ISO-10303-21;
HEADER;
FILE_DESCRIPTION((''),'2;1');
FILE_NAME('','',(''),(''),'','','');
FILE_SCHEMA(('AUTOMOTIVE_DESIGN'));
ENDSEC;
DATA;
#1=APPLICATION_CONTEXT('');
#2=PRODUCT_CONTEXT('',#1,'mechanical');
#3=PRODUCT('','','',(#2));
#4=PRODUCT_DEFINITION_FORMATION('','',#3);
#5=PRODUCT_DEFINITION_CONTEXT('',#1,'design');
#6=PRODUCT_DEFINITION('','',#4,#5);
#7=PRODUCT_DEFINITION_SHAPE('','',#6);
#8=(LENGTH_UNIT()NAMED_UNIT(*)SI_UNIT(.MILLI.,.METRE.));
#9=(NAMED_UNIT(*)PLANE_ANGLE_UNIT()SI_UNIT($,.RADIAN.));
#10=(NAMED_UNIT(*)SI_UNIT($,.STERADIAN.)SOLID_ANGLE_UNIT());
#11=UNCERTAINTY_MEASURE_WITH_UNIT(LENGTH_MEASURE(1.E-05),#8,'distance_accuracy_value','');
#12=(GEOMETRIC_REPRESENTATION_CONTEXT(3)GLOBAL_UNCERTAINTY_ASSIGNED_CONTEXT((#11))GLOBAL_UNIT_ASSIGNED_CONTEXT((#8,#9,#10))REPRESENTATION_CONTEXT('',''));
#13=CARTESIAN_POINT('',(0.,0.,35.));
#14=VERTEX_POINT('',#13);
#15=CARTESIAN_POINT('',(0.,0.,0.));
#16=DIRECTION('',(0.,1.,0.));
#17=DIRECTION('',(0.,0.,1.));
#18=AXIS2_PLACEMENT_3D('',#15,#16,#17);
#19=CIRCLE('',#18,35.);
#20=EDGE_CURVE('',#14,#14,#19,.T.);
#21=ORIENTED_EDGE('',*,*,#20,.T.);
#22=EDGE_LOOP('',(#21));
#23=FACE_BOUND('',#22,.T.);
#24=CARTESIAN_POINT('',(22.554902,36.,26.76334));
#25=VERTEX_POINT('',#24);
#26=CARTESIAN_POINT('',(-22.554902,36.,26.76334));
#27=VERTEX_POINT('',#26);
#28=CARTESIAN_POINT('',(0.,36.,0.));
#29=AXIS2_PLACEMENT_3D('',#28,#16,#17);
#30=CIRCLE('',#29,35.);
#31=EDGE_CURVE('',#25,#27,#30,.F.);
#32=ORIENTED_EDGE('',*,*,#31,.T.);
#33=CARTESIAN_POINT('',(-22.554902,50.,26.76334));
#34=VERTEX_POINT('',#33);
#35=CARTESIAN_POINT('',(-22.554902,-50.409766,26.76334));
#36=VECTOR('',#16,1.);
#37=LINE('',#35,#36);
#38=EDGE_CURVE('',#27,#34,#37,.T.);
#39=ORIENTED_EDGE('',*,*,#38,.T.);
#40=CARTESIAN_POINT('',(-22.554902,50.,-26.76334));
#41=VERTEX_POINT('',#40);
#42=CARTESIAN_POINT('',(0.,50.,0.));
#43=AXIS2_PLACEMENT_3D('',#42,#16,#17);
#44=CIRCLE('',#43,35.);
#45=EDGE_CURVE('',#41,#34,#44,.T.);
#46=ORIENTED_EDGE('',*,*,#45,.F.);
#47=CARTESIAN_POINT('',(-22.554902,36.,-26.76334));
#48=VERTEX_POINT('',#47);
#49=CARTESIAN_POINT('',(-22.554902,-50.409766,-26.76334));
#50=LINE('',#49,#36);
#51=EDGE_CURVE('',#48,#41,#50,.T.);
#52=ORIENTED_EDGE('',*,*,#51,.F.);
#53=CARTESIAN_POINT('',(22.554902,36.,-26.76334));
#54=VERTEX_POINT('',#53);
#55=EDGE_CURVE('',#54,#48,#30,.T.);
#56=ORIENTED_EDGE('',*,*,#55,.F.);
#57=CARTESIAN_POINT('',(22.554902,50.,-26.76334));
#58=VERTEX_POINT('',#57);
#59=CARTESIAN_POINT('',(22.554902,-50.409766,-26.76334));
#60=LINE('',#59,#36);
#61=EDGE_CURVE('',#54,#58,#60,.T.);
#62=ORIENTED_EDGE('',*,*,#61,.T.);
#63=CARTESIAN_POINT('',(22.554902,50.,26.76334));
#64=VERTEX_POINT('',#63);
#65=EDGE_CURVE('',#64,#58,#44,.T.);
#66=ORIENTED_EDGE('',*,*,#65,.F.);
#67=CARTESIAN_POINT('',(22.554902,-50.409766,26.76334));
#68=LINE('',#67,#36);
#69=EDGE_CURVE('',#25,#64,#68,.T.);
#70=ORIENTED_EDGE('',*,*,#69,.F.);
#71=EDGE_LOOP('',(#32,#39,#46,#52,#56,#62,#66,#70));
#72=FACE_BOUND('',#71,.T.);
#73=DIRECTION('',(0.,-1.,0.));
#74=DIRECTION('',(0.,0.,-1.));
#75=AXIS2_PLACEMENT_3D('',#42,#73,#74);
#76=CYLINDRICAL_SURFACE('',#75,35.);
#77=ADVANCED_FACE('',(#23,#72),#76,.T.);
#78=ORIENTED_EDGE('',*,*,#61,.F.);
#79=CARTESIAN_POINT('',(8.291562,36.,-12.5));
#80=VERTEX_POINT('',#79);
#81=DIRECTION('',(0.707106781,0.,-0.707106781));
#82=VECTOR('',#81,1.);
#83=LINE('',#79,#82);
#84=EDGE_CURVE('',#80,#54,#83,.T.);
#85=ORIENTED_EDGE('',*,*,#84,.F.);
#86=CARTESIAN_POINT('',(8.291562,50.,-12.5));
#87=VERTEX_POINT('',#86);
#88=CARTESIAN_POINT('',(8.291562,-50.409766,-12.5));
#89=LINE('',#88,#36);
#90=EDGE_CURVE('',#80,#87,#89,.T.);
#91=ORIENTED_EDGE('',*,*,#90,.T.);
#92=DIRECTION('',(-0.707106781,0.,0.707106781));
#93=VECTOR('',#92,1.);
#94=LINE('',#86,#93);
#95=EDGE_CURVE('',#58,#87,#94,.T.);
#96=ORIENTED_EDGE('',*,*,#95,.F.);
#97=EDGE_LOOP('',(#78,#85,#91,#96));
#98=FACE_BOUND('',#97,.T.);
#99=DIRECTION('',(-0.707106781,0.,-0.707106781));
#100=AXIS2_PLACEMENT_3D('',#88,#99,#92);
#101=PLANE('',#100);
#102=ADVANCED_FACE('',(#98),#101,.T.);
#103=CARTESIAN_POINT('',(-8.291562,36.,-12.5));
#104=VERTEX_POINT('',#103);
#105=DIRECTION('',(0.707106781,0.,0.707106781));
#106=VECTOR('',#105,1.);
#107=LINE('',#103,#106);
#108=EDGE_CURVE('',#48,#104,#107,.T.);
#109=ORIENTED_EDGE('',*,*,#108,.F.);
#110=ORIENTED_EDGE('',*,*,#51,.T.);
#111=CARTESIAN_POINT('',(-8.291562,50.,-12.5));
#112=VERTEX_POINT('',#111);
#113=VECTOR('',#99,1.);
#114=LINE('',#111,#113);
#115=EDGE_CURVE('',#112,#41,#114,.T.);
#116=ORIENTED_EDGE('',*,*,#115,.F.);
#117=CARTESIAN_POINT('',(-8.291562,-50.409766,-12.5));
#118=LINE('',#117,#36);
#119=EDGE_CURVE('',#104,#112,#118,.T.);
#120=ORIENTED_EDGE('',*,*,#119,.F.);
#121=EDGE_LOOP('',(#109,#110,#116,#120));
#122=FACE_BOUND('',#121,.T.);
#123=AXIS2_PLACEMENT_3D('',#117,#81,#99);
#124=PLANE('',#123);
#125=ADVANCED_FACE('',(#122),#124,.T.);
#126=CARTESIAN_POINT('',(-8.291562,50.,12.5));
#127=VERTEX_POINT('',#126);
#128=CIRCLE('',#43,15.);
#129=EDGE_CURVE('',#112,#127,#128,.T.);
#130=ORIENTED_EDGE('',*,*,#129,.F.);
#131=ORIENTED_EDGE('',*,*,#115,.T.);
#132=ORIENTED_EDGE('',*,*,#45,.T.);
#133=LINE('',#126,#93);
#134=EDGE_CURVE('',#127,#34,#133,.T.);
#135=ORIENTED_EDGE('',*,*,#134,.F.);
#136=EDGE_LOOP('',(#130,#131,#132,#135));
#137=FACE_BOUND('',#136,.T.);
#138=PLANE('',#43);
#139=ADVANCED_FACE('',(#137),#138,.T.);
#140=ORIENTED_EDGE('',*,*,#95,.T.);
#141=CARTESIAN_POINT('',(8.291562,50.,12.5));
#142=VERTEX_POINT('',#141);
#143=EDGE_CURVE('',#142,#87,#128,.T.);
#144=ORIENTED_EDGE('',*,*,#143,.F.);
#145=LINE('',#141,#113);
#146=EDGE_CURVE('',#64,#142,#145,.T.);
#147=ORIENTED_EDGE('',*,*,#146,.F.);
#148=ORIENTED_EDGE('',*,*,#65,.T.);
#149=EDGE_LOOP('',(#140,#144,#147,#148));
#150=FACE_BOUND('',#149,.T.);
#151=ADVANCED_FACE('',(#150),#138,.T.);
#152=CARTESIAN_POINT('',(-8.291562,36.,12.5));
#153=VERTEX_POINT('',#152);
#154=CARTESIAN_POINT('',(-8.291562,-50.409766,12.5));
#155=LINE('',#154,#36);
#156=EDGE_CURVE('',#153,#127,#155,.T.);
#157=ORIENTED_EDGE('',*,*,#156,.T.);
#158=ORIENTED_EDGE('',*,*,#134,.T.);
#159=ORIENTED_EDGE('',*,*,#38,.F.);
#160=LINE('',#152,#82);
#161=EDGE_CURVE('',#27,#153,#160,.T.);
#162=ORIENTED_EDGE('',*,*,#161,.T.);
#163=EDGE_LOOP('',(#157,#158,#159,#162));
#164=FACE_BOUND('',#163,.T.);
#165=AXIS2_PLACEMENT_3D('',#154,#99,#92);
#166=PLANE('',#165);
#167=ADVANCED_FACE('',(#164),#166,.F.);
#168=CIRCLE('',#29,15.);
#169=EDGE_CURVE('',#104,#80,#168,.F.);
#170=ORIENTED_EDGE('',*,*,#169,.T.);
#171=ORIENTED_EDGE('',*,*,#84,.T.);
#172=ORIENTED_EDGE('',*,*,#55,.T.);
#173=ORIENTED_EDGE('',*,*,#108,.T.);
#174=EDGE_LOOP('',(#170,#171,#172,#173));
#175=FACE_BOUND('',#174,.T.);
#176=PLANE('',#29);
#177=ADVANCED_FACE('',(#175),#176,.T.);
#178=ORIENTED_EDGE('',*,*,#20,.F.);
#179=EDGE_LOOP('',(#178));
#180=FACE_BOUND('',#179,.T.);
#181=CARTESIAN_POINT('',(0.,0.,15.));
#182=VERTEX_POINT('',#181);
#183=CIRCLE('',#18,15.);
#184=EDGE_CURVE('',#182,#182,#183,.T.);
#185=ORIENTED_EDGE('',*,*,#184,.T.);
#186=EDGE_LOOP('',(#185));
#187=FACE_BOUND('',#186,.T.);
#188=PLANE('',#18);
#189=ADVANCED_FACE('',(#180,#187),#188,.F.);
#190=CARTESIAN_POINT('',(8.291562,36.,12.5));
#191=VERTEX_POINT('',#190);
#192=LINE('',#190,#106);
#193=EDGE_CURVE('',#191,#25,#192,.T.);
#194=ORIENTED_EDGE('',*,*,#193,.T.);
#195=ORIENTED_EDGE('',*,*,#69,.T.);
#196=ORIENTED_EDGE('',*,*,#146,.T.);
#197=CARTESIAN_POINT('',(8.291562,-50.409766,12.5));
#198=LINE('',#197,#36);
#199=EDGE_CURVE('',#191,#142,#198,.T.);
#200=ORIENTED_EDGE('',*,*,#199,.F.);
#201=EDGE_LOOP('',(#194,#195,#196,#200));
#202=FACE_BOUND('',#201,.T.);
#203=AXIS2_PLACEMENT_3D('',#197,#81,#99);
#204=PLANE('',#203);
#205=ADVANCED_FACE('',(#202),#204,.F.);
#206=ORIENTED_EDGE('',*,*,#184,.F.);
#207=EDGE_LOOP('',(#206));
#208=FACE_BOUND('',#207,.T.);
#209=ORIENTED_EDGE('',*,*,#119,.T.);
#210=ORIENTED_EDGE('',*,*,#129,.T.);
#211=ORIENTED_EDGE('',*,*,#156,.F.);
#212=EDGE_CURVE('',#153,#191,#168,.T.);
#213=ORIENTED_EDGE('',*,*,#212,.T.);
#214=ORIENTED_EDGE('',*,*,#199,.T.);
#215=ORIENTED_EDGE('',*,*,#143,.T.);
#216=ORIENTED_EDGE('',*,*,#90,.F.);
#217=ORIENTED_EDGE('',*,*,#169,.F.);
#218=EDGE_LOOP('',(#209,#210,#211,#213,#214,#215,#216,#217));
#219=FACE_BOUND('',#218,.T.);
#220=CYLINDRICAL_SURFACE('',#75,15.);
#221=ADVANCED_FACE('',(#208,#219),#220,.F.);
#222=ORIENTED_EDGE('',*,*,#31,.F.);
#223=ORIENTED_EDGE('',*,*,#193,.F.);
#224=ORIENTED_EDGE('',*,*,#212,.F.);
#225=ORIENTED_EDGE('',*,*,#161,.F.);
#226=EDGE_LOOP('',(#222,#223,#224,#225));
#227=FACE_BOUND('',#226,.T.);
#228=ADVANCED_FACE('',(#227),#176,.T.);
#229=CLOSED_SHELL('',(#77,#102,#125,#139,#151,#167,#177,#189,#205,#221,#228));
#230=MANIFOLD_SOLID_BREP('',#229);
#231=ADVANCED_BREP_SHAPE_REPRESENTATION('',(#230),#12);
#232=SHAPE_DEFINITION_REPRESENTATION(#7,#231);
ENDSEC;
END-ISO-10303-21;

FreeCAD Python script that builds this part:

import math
import FreeCAD as App
import Part
import Sketcher

doc = App.newDocument("Part")
body = doc.addObject("PartDesign::Body", "Body")

# Sketch on XZ plane
sketch1 = body.newObject("Sketcher::SketchObject", "Sketch")
sketch1.AttachmentSupport = (doc.getObject("XZ_Plane"), [""])
sketch1.MapMode = "FlatFace"
sketch1.addGeometry([
    Part.Circle(App.Vector(0, 0, 0), App.Vector(0, 0, 1), 35),
    Part.Circle(App.Vector(0, 0, 0), App.Vector(0, 0, 1), 15),
], False)
sketch1.addConstraint([
    Sketcher.Constraint("Coincident", 0, 3, -1, 1),
    Sketcher.Constraint("Coincident", 1, 3, -1, 1),
    Sketcher.Constraint("Diameter", 0, 70.0),
    Sketcher.Constraint("Diameter", 1, 30.0),
])
pad1 = body.newObject("PartDesign::Pad", "Pad")
pad1.Profile = sketch1
pad1.Length = 50
pad1.Reversed = True

# Sketch on XZ plane
sketch2 = body.newObject("Sketcher::SketchObject", "Sketch001")
sketch2.AttachmentSupport = (doc.getObject("XZ_Plane"), [""])
sketch2.MapMode = "FlatFace"
sketch2.AttachmentOffset = App.Placement(App.Vector(0, 0, -36), App.Rotation())
sketch2.addGeometry([
    Part.LineSegment(App.Vector(22.554902, 26.76334, 0), App.Vector(8.291562, 12.5, 0)),
    Part.ArcOfCircle(Part.Circle(App.Vector(0, 0, 0), App.Vector(0, 0, 1), 15), math.radians(56.44269), math.radians(123.55731)),
    Part.LineSegment(App.Vector(-8.291562, 12.5, 0), App.Vector(-22.554902, 26.76334, 0)),
    Part.ArcOfCircle(Part.Circle(App.Vector(0, 0, 0), App.Vector(0, 0, 1), 35), math.radians(49.877364), math.radians(130.122636)),
], False)
sketch2.addConstraint([
    Sketcher.Constraint("Coincident", 0, 2, 1, 1),
    Sketcher.Constraint("Coincident", 1, 2, 2, 1),
    Sketcher.Constraint("Coincident", 2, 2, 3, 2),
    Sketcher.Constraint("Coincident", 3, 1, 0, 1),
    Sketcher.Constraint("Coincident", 1, 3, -1, 1),
    Sketcher.Constraint("Coincident", 3, 3, -1, 1),
    Sketcher.Constraint("Perpendicular", 0, 2),
    Sketcher.Constraint("Horizontal", 0, 2, 1, 2),
    Sketcher.Constraint("Horizontal", 2, 2, 3, 1),
    Sketcher.Constraint("Radius", 1, 15.0),
    Sketcher.Constraint("Radius", 3, 35.0),
    Sketcher.Constraint("DistanceY", -1, 1, 0, 2, 12.5),
])
pocket1 = body.newObject("PartDesign::Pocket", "Pocket")
pocket1.Profile = sketch2
pocket1.Length = 14
doc.recompute()

mirrored = body.newObject("PartDesign::Mirrored", "Mirrored")
mirrored.Originals = [pocket1]
mirrored.MirrorPlane = (doc.getObject("XY_Plane"), [""])
body.Tip = mirrored

doc.recompute()
